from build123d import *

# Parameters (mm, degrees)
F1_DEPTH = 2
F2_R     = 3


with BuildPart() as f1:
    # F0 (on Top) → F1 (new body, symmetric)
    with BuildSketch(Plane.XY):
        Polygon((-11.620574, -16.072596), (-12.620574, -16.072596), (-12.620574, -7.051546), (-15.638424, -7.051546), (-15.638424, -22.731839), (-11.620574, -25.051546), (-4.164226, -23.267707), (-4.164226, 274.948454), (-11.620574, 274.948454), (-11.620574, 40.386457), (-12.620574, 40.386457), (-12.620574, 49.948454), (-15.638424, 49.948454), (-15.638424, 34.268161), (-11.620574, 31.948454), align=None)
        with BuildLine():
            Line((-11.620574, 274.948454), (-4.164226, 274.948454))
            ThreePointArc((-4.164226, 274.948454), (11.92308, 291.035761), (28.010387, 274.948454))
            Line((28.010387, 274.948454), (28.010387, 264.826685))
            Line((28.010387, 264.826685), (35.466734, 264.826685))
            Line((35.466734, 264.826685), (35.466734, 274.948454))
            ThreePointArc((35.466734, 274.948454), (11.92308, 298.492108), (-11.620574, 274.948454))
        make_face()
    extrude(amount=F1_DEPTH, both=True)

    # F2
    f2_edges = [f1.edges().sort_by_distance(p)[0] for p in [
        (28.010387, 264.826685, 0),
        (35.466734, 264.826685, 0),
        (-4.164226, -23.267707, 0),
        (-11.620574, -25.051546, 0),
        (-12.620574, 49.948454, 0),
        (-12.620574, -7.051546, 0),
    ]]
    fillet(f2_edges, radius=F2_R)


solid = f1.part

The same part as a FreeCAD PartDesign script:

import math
import FreeCAD as App
import Part
import Sketcher
Q = App.Units.Quantity


def edges_at(feature, points):
    """Names of the edges that pass closest to the given points."""
    edges = feature.Shape.Edges
    near = lambda p: min(range(len(edges)), key=lambda i: edges[i].distToShape(Part.Vertex(*p))[0])
    return sorted({f"Edge{near(p) + 1}" for p in points})

doc = App.newDocument("Part")
body = doc.addObject("PartDesign::Body", "Body")

# Sketch on XY plane
sketch1 = body.newObject("Sketcher::SketchObject", "Sketch")
sketch1.AttachmentSupport = (doc.getObject("XY_Plane"), [""])
sketch1.MapMode = "FlatFace"
sketch1.addGeometry([
    Part.LineSegment(App.Vector(-11.620574, -16.072596, 0), App.Vector(-12.620574, -16.072596, 0)),  # 0
    Part.LineSegment(App.Vector(-12.620574, -16.072596, 0), App.Vector(-12.620574, -7.051546, 0)),  # 1
    Part.LineSegment(App.Vector(-12.620574, -7.051546, 0), App.Vector(-15.638424, -7.051546, 0)),  # 2
    Part.LineSegment(App.Vector(-15.638424, -7.051546, 0), App.Vector(-15.638424, -22.731839, 0)),  # 3
    Part.LineSegment(App.Vector(-15.638424, -22.731839, 0), App.Vector(-11.620574, -25.051546, 0)),  # 4
    Part.LineSegment(App.Vector(-11.620574, -25.051546, 0), App.Vector(-4.164226, -23.267707, 0)),  # 5
    Part.LineSegment(App.Vector(-4.164226, -23.267707, 0), App.Vector(-4.164226, 274.948454, 0)),  # 6
    Part.ArcOfCircle(Part.Circle(App.Vector(11.92308, 274.948455, 0), App.Vector(0, 0, 1), 16.087307), math.radians(-0.000002), math.radians(180.000002)),  # 7
    Part.LineSegment(App.Vector(28.010387, 274.948454, 0), App.Vector(28.010387, 264.826685, 0)),  # 8
    Part.LineSegment(App.Vector(28.010387, 264.826685, 0), App.Vector(35.466734, 264.826685, 0)),  # 9
    Part.LineSegment(App.Vector(35.466734, 264.826685, 0), App.Vector(35.466734, 274.948454, 0)),  # 10
    Part.ArcOfCircle(Part.Circle(App.Vector(11.92308, 274.948454, 0), App.Vector(0, 0, 1), 23.543654), math.radians(0), math.radians(180)),  # 11
    Part.LineSegment(App.Vector(-11.620574, 274.948454, 0), App.Vector(-11.620574, 40.386457, 0)),  # 12
    Part.LineSegment(App.Vector(-11.620574, 40.386457, 0), App.Vector(-12.620574, 40.386457, 0)),  # 13
    Part.LineSegment(App.Vector(-12.620574, 40.386457, 0), App.Vector(-12.620574, 49.948454, 0)),  # 14
    Part.LineSegment(App.Vector(-12.620574, 49.948454, 0), App.Vector(-15.638424, 49.948454, 0)),  # 15
    Part.LineSegment(App.Vector(-15.638424, 49.948454, 0), App.Vector(-15.638424, 34.268161, 0)),  # 16
    Part.LineSegment(App.Vector(-15.638424, 34.268161, 0), App.Vector(-11.620574, 31.948454, 0)),  # 17
    Part.LineSegment(App.Vector(-11.620574, 31.948454, 0), App.Vector(-11.620574, -16.072596, 0)),  # 18
], False)
sketch1.addConstraint([
    Sketcher.Constraint("Coincident", 0, 2, 1, 1),
    Sketcher.Constraint("Coincident", 1, 2, 2, 1),
    Sketcher.Constraint("Coincident", 2, 2, 3, 1),
    Sketcher.Constraint("Coincident", 3, 2, 4, 1),
    Sketcher.Constraint("Coincident", 4, 2, 5, 1),
    Sketcher.Constraint("Coincident", 5, 2, 6, 1),
    Sketcher.Constraint("Tangent", 6, 2, 7, 2),
    Sketcher.Constraint("Tangent", 7, 1, 8, 1),
    Sketcher.Constraint("Coincident", 8, 2, 9, 1),
    Sketcher.Constraint("Coincident", 9, 2, 10, 1),
    Sketcher.Constraint("Tangent", 10, 2, 11, 1),
    Sketcher.Constraint("Tangent", 11, 2, 12, 1),
    Sketcher.Constraint("Coincident", 12, 2, 13, 1),
    Sketcher.Constraint("Coincident", 13, 2, 14, 1),
    Sketcher.Constraint("Coincident", 14, 2, 15, 1),
    Sketcher.Constraint("Coincident", 15, 2, 16, 1),
    Sketcher.Constraint("Coincident", 16, 2, 17, 1),
    Sketcher.Constraint("Coincident", 17, 2, 18, 1),
    Sketcher.Constraint("Coincident", 18, 2, 0, 1),
    Sketcher.Constraint("Horizontal", 0),
    Sketcher.Constraint("Vertical", 1),
    Sketcher.Constraint("Horizontal", 2),
    Sketcher.Constraint("Vertical", 3),
    Sketcher.Constraint("Vertical", 6),
    Sketcher.Constraint("Vertical", 8),
    Sketcher.Constraint("Horizontal", 9),
    Sketcher.Constraint("Vertical", 10),
    Sketcher.Constraint("Vertical", 12),
    Sketcher.Constraint("Horizontal", 13),
    Sketcher.Constraint("Vertical", 14),
    Sketcher.Constraint("Horizontal", 15),
    Sketcher.Constraint("Vertical", 16),
    Sketcher.Constraint("Vertical", 18),
    Sketcher.Constraint("Coincident", 11, 3, 7, 3),
    Sketcher.Constraint("Parallel", 4, 17),
    Sketcher.Constraint("Vertical", 4, 2, 11, 2),
    Sketcher.Constraint("Vertical", 1, 2, 13, 2),
    Sketcher.Constraint("Vertical", 3, 2, 15, 2),
    Sketcher.Constraint("Vertical", 12, 2, 17, 2),
    Sketcher.Constraint("Equal", 3, 16),
    Sketcher.Constraint("DistanceX", 0, 2, 0, 1, 1.0),
    Sketcher.Constraint("Angle", 4, Q("-30.000002 deg")),
    Sketcher.Constraint("DistanceY", 1, 2, 11, 3, 282.0),
    Sketcher.Constraint("DistanceY", 4, 2, 1, 2, 18.0),
    Sketcher.Constraint("DistanceY", 1, 2, 14, 2, 57.0),
    Sketcher.Constraint("Radius", 7, 16.087307),
    Sketcher.Constraint("Radius", 11, 23.543654),
    Sketcher.Constraint("DistanceX", 2, 2, 2, 1, 3.01785),
    Sketcher.Constraint("DistanceY", 1, 1, 1, 2, 9.02105),
    Sketcher.Constraint("DistanceY", 6, 1, 6, 2, 298.216161),
    Sketcher.Constraint("DistanceY", 8, 2, 8, 1, 10.121769),
    Sketcher.Constraint("DistanceY", 12, 2, 12, 1, 234.561997),
    Sketcher.Constraint("DistanceX", -1, 1, 7, 3, 11.92308),
    Sketcher.Constraint("DistanceY", 3, 2, -1, 1, 22.731839),
])
pad1 = body.newObject("PartDesign::Pad", "Pad")
pad1.Profile = sketch1
pad1.Length = 4
pad1.Midplane = True
doc.recompute()

fillet = body.newObject("PartDesign::Fillet", "Fillet")
fillet.Base = (pad1, edges_at(pad1, [
    (28.01, 264.827, 0),
    (35.467, 264.827, 0),
    (-4.164, -23.268, 0),
    (-11.621, -25.052, 0),
    (-12.621, 49.948, 0),
    (-12.621, -7.052, 0),
]))
fillet.Radius = 3

doc.recompute()
